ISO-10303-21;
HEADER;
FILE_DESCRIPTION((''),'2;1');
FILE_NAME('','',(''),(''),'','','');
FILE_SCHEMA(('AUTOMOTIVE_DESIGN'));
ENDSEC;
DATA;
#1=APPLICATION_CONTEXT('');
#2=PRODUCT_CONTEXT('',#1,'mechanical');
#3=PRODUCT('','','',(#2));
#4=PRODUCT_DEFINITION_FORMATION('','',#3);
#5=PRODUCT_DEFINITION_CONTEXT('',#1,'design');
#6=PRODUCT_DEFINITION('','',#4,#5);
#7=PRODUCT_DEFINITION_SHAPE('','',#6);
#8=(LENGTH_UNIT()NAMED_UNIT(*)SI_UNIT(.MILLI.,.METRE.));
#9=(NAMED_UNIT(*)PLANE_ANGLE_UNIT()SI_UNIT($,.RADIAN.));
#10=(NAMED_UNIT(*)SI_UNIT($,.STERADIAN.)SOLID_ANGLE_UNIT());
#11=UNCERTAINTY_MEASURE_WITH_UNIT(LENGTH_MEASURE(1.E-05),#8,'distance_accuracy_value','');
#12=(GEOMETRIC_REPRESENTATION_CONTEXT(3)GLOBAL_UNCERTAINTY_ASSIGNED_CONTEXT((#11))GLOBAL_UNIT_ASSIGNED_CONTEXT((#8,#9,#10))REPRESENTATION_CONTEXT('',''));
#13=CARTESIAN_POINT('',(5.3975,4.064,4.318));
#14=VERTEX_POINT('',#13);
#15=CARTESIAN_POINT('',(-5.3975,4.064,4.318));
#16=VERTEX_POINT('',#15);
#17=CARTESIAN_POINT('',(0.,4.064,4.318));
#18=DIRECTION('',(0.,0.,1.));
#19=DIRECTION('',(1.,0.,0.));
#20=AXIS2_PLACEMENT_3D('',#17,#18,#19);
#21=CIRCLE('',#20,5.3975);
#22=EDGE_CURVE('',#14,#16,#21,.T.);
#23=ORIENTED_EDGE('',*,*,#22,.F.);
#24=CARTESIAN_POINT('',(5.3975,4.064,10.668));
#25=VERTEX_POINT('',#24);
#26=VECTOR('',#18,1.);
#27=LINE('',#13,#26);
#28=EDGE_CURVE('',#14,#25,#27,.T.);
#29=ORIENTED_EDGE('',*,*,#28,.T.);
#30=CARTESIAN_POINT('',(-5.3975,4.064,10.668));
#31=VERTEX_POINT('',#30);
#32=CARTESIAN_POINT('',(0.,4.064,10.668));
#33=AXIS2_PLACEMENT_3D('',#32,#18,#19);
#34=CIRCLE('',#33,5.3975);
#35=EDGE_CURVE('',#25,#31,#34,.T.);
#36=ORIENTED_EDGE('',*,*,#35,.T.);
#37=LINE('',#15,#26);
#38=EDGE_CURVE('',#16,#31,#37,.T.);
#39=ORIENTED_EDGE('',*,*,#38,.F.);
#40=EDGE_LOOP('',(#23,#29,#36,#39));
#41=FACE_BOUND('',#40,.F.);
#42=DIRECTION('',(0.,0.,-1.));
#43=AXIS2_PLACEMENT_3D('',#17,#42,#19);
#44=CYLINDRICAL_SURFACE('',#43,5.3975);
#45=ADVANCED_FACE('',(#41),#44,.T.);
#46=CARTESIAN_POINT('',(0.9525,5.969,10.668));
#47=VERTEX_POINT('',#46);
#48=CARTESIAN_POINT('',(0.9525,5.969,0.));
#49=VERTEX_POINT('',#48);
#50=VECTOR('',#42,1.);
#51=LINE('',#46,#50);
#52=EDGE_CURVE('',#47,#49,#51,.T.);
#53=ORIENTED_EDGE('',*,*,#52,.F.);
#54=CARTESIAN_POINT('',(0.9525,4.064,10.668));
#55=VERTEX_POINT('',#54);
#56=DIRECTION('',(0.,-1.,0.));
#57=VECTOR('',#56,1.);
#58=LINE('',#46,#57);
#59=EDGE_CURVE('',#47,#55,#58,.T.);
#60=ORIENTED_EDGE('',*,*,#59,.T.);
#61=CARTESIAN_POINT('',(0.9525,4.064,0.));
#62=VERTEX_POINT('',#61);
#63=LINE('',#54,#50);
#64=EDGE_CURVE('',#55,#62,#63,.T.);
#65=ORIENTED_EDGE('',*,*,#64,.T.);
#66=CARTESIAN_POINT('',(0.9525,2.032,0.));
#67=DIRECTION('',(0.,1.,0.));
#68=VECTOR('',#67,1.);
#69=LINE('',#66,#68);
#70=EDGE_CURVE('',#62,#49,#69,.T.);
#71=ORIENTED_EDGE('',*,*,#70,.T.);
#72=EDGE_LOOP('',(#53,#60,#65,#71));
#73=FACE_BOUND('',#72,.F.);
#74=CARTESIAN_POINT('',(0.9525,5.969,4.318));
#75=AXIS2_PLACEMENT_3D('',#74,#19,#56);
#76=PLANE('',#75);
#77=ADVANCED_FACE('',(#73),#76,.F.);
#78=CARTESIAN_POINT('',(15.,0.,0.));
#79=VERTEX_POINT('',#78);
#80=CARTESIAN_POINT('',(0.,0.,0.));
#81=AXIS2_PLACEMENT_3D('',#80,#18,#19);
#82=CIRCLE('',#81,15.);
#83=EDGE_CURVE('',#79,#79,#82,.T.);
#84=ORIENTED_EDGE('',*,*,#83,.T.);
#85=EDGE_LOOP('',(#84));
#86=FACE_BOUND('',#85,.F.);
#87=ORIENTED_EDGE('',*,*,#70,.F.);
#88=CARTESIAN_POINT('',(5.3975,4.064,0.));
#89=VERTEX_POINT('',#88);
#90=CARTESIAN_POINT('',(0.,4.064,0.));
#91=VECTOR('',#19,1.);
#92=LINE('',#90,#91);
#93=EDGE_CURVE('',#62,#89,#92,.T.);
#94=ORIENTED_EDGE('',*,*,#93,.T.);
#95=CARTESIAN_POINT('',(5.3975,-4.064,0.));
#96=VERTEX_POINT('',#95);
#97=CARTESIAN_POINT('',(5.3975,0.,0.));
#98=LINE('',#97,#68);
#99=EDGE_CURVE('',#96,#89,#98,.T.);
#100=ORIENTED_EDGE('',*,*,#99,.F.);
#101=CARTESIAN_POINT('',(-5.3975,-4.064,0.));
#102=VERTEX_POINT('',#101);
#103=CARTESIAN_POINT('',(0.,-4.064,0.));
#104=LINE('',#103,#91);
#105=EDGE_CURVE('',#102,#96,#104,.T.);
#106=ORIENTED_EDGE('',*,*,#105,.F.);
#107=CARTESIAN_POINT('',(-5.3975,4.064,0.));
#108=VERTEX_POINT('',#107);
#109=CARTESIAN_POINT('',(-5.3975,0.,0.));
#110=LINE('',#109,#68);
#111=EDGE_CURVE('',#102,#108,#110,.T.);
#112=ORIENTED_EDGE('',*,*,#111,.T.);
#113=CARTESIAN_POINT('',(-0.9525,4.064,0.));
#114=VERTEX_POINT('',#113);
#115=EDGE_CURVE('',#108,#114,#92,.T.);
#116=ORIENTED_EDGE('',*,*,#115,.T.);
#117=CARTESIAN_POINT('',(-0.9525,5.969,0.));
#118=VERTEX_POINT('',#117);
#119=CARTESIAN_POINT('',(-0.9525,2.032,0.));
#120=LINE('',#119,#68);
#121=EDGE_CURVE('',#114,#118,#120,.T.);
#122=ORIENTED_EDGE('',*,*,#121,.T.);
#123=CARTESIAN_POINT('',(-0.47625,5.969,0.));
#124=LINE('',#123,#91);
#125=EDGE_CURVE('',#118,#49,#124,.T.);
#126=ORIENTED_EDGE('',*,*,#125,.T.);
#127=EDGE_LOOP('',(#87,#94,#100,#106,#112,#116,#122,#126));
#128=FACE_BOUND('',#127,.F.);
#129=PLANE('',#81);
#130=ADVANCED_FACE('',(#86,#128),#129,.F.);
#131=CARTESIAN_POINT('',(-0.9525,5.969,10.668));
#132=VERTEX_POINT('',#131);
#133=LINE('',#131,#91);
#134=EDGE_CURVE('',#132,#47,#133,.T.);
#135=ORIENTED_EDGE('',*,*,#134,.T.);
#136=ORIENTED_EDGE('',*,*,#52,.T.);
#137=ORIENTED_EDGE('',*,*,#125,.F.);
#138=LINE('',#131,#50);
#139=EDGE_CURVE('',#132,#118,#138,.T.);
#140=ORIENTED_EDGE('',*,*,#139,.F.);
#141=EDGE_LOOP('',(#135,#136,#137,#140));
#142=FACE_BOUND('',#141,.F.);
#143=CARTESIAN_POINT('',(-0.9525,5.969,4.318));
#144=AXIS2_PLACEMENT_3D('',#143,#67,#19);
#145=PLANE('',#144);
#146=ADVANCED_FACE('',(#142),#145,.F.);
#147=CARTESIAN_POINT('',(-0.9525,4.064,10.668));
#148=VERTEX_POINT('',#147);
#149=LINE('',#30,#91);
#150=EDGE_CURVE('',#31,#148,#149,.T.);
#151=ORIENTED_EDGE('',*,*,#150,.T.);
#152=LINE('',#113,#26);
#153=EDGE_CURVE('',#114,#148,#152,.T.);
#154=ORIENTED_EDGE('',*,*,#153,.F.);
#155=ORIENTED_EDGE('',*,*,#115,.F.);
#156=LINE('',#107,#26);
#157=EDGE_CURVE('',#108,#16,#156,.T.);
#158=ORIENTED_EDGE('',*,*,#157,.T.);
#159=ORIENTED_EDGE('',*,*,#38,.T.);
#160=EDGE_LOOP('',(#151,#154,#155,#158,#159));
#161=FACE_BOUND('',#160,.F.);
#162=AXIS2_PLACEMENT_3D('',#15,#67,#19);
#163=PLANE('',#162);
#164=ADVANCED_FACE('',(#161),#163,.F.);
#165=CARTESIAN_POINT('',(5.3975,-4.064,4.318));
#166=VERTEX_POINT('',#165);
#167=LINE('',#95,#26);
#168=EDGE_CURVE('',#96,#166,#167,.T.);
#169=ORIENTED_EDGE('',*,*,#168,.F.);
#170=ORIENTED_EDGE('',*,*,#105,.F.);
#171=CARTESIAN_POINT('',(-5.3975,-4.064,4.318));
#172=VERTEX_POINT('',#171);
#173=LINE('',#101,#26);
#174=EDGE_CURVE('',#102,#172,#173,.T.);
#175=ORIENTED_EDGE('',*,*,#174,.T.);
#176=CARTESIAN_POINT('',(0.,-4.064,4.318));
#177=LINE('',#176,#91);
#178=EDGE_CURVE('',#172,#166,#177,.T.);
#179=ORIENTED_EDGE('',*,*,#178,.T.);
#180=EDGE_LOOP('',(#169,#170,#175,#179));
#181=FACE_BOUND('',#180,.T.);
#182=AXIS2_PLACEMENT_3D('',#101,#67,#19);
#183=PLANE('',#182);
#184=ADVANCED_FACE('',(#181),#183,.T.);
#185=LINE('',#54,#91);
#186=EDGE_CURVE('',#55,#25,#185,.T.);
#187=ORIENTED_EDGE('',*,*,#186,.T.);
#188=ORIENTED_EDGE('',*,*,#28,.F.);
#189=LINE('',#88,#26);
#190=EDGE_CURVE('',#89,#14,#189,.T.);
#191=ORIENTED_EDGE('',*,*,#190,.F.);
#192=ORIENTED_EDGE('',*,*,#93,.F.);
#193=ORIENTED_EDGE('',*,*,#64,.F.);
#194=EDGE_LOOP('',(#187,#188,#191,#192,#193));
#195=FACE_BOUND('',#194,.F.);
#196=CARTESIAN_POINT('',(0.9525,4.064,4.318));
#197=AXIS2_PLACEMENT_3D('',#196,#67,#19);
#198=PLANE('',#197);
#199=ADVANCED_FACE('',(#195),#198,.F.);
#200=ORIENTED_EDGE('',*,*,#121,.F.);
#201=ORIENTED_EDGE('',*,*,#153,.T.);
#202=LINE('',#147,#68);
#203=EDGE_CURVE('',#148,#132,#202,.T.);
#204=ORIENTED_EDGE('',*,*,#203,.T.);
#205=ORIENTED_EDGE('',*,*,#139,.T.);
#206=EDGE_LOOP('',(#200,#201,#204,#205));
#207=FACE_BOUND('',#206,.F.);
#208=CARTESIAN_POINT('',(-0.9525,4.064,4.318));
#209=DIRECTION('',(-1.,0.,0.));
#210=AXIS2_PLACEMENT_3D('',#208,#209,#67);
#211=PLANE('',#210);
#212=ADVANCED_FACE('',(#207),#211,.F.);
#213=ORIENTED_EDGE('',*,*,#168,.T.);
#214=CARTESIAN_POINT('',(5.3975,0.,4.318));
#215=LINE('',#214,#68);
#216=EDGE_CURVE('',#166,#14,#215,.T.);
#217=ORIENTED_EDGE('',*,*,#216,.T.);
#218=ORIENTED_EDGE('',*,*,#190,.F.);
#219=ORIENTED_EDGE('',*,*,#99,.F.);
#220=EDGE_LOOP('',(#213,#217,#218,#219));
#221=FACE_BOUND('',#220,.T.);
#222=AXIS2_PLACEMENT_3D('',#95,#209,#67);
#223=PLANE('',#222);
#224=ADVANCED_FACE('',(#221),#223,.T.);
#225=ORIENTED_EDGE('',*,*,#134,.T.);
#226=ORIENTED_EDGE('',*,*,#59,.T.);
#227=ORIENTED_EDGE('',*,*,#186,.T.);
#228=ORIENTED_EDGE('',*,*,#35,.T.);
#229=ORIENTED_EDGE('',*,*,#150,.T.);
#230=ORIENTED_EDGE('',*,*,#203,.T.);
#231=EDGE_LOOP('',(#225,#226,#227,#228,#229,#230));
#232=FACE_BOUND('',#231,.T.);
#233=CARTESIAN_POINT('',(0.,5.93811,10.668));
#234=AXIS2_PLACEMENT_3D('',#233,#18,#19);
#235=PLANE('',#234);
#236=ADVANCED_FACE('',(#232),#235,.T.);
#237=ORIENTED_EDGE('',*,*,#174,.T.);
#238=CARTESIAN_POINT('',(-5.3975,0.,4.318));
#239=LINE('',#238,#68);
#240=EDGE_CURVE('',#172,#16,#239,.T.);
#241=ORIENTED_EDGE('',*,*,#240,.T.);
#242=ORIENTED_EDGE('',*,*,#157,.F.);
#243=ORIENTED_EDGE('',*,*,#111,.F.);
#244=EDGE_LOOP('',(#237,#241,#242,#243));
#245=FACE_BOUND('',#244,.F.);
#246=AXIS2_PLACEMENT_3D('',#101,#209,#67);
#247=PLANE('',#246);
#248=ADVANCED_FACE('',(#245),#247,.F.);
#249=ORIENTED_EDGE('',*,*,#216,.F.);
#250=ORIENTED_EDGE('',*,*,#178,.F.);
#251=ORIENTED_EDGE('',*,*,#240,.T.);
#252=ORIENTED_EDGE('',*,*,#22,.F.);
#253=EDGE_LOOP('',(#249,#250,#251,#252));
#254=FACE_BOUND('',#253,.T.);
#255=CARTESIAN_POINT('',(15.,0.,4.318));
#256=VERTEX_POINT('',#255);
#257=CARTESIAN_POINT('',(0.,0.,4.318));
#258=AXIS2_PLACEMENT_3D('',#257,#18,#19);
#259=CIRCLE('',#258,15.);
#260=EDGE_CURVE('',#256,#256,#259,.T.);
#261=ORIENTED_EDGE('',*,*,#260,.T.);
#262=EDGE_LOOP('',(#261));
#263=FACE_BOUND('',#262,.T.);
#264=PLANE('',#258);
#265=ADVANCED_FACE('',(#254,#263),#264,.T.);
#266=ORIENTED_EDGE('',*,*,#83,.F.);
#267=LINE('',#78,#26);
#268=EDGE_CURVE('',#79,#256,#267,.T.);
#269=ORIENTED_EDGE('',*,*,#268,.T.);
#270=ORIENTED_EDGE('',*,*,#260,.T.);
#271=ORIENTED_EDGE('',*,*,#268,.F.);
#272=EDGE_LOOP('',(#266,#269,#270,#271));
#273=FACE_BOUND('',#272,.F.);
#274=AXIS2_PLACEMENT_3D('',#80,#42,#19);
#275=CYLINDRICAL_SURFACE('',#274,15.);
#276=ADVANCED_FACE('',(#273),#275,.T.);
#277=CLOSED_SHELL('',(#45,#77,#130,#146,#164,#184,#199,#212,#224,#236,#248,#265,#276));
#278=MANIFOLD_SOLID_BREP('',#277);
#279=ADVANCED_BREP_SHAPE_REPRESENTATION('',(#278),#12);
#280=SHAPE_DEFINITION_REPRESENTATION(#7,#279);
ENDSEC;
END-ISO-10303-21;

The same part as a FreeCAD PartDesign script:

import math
import FreeCAD as App
import Part
import Sketcher

V = App.Vector
Q = App.Units.Quantity


def add_polygon(sketch, points):
    """Adds a closed chain of lines whose ends are joined by coincident constraints."""
    first, n = sketch.GeometryCount, len(points)
    for a, b in zip(points, points[1:] + points[:1]):
        sketch.addGeometry(Part.LineSegment(App.Vector(*a, 0), App.Vector(*b, 0)), False)
    for i in range(n):
        sketch.addConstraint(Sketcher.Constraint("Coincident", first + i, 2, first + (i + 1) % n, 1))

doc = App.newDocument("Part")
body = doc.addObject("PartDesign::Body", "Body")

sketch1 = body.newObject("Sketcher::SketchObject", "Sketch")
sketch1.AttachmentSupport = (doc.getObject("XY_Plane"), [""])
sketch1.MapMode = "FlatFace"
sketch1.addGeometry(Part.Circle(V(0, 0, 0), V(0, 0, 1), 15), False)
add_polygon(sketch1, [(5, -4), (-5, -4), (-5, 4), (5, 4)])
sketch1.addConstraint([
    Sketcher.Constraint("Horizontal", 1),
    Sketcher.Constraint("Vertical", 2),
    Sketcher.Constraint("Horizontal", 3),
    Sketcher.Constraint("Vertical", 4),
    Sketcher.Constraint("Coincident", 0, 3, -1, 1),
    Sketcher.Constraint("Symmetric", 1, 2, 3, 2, -1, 1),
    Sketcher.Constraint("DistanceY", 2, 1, 2, 2, Q("0.32 in")),
    Sketcher.Constraint("Diameter", 0, Q("30 mm")),
    Sketcher.Constraint("DistanceX", 1, 2, 1, 1, Q("0.425 in")),
])
pad1 = body.newObject("PartDesign::Pad", "Pad")
pad1.Profile = sketch1
pad1.Length = Q("0.17 in")

sketch2 = body.newObject("Sketcher::SketchObject", "Sketch001")
sketch2.AttachmentSupport = (doc.getObject("XY_Plane"), [""])
sketch2.MapMode = "FlatFace"
sketch2.AttachmentOffset = App.Placement(V(0, 0, 0.17 * 25.4), App.Rotation())
add_polygon(sketch2, [(-1, 6), (-1, 4.1), (1, 4.1), (1, 6)])
sketch2.addConstraint([
    Sketcher.Constraint("Vertical", 0),
    Sketcher.Constraint("Horizontal", 1),
    Sketcher.Constraint("Vertical", 2),
    Sketcher.Constraint("Horizontal", 3),
    Sketcher.Constraint("Equal", 3, 0),
    Sketcher.Constraint("DistanceX", 1, 1, 1, 2, Q("0.075 in")),
    Sketcher.Constraint("DistanceY", -1, 1, 0, 2, Q("0.16 in")),
    Sketcher.Constraint("DistanceX", 0, 2, -1, 1, Q("0.0375 in")),
])
pocket1 = body.newObject("PartDesign::Pocket", "Pocket")
pocket1.Profile = sketch2
pocket1.Length = Q("1 in")

sketch3 = body.newObject("Sketcher::SketchObject", "Sketch002")
sketch3.AttachmentSupport = (doc.getObject("XY_Plane"), [""])
sketch3.MapMode = "FlatFace"
sketch3.AttachmentOffset = App.Placement(V(0, 0, 0.17 * 25.4), App.Rotation())
sketch3.addGeometry([
    Part.LineSegment(V(1, 4.1, 0), V(5.4, 4.1, 0)),
    Part.ArcOfCircle(Part.Circle(V(0, 4.1, 0), V(0, 0, 1), 5.4), math.radians(0), math.radians(180)),
    Part.LineSegment(V(-5.4, 4.1, 0), V(-1, 4.1, 0)),
    Part.LineSegment(V(-1, 4.1, 0), V(-1, 6, 0)),
    Part.LineSegment(V(-1, 6, 0), V(1, 6, 0)),
    Part.LineSegment(V(1, 6, 0), V(1, 4.1, 0)),
], False)
sketch3.addConstraint([
    Sketcher.Constraint("Coincident", 0, 2, 1, 1),
    Sketcher.Constraint("Coincident", 1, 2, 2, 1),
    Sketcher.Constraint("Coincident", 2, 2, 3, 1),
    Sketcher.Constraint("Coincident", 3, 2, 4, 1),
    Sketcher.Constraint("Coincident", 4, 2, 5, 1),
    Sketcher.Constraint("Coincident", 5, 2, 0, 1),
    Sketcher.Constraint("Horizontal", 0),
    Sketcher.Constraint("Horizontal", 2),
    Sketcher.Constraint("Vertical", 3),
    Sketcher.Constraint("Horizontal", 4),
    Sketcher.Constraint("Vertical", 5),
    Sketcher.Constraint("Symmetric", 0, 2, 1, 2, -2),
    Sketcher.Constraint("Horizontal", 1, 3, 0, 2),
    Sketcher.Constraint("Equal", 0, 2),
    Sketcher.Constraint("Equal", 4, 3),
    Sketcher.Constraint("Radius", 1, Q("0.2125 in")),
    Sketcher.Constraint("DistanceX", 0, 1, 0, 2, Q("0.175 in")),
    Sketcher.Constraint("DistanceY", -1, 1, 1, 3, Q("0.16 in")),
])
pad2 = body.newObject("PartDesign::Pad", "Pad001")
pad2.Profile = sketch3
pad2.Length = Q("0.25 in")

doc.recompute()
